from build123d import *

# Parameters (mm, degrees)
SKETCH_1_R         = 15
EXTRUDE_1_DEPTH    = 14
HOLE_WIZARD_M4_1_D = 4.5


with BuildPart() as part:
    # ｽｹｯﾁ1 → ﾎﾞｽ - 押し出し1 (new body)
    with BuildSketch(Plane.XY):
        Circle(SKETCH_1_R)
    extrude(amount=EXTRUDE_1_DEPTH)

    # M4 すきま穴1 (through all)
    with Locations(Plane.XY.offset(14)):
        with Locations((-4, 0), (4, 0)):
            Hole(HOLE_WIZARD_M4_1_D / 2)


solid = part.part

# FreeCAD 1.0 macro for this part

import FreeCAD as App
import Part
import Sketcher
from FreeCAD import Vector
Q = App.Units.Quantity

doc = App.newDocument("Part")
body = doc.addObject("PartDesign::Body", "Body")

# Sketch on XY plane
sketch1 = body.newObject("Sketcher::SketchObject", "Sketch")
sketch1.AttachmentSupport = (doc.getObject("XY_Plane"), [""])
sketch1.MapMode = "FlatFace"
sketch1.addGeometry(Part.Circle(Vector(0, 0, 0), Vector(0, 0, 1), 15), False)
sketch1.addConstraint([
    Sketcher.Constraint("Coincident", 0, 3, -1, 1),
    Sketcher.Constraint("Diameter", 0, Q("30 mm")),
])
pad1 = body.newObject("PartDesign::Pad", "Pad")
pad1.Profile = sketch1
pad1.Length = 14

# Sketch on XY plane
sketch2 = body.newObject("Sketcher::SketchObject", "Sketch001")
sketch2.AttachmentSupport = (doc.getObject("XY_Plane"), [""])
sketch2.MapMode = "FlatFace"
sketch2.AttachmentOffset = App.Placement(Vector(0, 0, 14), App.Rotation())
sketch2.addGeometry([
    Part.Circle(Vector(-4, 0, 0), Vector(0, 0, 1), 2.2),
    Part.Circle(Vector(4, 0, 0), Vector(0, 0, 1), 2.2),
], False)
sketch2.addConstraint([
    Sketcher.Constraint("Equal", 0, 1),
    Sketcher.Constraint("Symmetric", 0, 3, 1, 3, -1, 1),
    Sketcher.Constraint("PointOnObject", 0, 3, -1),
    Sketcher.Constraint("Diameter", 0, Q("4.5 mm")),
    Sketcher.Constraint("DistanceX", 0, 3, -1, 1, Q("4 mm")),
])
doc.recompute()
hole = body.newObject("PartDesign::Hole", "Hole")
hole.Profile = sketch2
hole.ThreadType = "None"
hole.Diameter = 4.5
hole.DepthType = "ThroughAll"

doc.recompute()
